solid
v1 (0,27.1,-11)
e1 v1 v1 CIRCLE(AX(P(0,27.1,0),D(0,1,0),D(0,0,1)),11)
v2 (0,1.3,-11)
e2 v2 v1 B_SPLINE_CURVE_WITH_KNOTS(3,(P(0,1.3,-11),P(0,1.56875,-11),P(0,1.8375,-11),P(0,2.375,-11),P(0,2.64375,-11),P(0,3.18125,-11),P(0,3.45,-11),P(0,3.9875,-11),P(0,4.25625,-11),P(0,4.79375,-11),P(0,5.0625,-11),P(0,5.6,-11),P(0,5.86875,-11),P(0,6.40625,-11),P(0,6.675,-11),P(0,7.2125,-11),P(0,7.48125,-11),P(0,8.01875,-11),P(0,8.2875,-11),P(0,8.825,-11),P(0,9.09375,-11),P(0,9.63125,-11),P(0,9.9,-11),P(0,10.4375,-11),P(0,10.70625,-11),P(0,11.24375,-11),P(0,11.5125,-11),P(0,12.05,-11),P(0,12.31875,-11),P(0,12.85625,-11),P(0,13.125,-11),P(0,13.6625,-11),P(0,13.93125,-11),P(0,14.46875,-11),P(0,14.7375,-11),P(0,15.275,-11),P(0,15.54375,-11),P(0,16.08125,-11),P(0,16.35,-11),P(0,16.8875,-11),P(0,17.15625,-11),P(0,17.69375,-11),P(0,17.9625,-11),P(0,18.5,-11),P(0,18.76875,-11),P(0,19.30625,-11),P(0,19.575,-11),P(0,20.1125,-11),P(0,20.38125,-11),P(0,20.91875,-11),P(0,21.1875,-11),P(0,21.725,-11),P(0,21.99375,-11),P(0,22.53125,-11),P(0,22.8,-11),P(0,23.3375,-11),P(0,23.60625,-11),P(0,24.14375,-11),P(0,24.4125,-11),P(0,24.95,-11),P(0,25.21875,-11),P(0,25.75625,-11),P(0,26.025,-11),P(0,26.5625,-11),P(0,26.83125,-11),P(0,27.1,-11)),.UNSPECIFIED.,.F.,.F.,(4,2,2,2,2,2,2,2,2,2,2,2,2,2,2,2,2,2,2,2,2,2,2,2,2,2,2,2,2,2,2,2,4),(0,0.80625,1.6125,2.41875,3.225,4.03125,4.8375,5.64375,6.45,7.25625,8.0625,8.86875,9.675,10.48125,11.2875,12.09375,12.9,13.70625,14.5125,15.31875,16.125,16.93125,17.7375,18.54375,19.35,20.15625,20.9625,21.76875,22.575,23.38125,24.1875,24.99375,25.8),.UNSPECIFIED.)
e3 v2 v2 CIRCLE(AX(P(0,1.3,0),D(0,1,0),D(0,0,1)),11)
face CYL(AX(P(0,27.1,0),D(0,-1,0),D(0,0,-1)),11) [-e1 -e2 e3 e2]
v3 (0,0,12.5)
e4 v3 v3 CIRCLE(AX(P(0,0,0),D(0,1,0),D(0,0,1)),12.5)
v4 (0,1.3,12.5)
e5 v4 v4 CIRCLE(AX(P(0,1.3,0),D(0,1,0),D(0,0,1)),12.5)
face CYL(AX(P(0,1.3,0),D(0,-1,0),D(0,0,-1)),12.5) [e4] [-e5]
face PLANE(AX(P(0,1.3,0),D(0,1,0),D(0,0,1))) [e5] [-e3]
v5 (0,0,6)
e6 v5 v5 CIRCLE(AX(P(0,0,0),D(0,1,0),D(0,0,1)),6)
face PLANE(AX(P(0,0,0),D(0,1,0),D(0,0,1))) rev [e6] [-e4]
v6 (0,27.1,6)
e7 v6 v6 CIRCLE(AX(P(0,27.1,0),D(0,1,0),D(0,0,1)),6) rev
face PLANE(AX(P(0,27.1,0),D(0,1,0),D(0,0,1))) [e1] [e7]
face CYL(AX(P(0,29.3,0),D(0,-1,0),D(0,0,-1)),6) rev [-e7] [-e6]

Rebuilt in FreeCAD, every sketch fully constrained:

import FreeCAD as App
import Part
import Sketcher
from FreeCAD import Vector
Q = App.Units.Quantity

doc = App.newDocument("Part")
body = doc.addObject("PartDesign::Body", "Body")

sketch1 = body.newObject("Sketcher::SketchObject", "Sketch")
sketch1.AttachmentSupport = (doc.getObject("XZ_Plane"), [""])
sketch1.MapMode = "FlatFace"
sketch1.addGeometry(Part.Circle(Vector(0, 0, 0), Vector(0, 0, 1), 11), False)
sketch1.addConstraint([
    Sketcher.Constraint("Coincident", 0, 3, -1, 1),
    Sketcher.Constraint("Diameter", 0, Q("22 mm")),
])
pad1 = body.newObject("PartDesign::Pad", "Pad")
pad1.Profile = sketch1
pad1.Length = 27.1
pad1.Reversed = True

sketch2 = body.newObject("Sketcher::SketchObject", "Sketch001")
sketch2.AttachmentSupport = (doc.getObject("XZ_Plane"), [""])
sketch2.MapMode = "FlatFace"
sketch2.addGeometry(Part.Circle(Vector(0, 0, 0), Vector(0, 0, 1), 12), False)
sketch2.addConstraint([
    Sketcher.Constraint("Coincident", 0, 3, -1, 1),
    Sketcher.Constraint("Diameter", 0, Q("25 mm")),
])
pad2 = body.newObject("PartDesign::Pad", "Pad001")
pad2.Profile = sketch2
pad2.Length = 1.3
pad2.Reversed = True

sketch3 = body.newObject("Sketcher::SketchObject", "Sketch002")
sketch3.AttachmentSupport = (doc.getObject("XZ_Plane"), [""])
sketch3.MapMode = "FlatFace"
sketch3.addGeometry(Part.Circle(Vector(0, 0, 0), Vector(0, 0, 1), 6), False)
sketch3.addConstraint([
    Sketcher.Constraint("Coincident", 0, 3, -1, 1),
    Sketcher.Constraint("Diameter", 0, Q("12 mm")),
])
pocket1 = body.newObject("PartDesign::Pocket", "Pocket")
pocket1.Profile = sketch3
pocket1.Length = 29.3

doc.recompute()
